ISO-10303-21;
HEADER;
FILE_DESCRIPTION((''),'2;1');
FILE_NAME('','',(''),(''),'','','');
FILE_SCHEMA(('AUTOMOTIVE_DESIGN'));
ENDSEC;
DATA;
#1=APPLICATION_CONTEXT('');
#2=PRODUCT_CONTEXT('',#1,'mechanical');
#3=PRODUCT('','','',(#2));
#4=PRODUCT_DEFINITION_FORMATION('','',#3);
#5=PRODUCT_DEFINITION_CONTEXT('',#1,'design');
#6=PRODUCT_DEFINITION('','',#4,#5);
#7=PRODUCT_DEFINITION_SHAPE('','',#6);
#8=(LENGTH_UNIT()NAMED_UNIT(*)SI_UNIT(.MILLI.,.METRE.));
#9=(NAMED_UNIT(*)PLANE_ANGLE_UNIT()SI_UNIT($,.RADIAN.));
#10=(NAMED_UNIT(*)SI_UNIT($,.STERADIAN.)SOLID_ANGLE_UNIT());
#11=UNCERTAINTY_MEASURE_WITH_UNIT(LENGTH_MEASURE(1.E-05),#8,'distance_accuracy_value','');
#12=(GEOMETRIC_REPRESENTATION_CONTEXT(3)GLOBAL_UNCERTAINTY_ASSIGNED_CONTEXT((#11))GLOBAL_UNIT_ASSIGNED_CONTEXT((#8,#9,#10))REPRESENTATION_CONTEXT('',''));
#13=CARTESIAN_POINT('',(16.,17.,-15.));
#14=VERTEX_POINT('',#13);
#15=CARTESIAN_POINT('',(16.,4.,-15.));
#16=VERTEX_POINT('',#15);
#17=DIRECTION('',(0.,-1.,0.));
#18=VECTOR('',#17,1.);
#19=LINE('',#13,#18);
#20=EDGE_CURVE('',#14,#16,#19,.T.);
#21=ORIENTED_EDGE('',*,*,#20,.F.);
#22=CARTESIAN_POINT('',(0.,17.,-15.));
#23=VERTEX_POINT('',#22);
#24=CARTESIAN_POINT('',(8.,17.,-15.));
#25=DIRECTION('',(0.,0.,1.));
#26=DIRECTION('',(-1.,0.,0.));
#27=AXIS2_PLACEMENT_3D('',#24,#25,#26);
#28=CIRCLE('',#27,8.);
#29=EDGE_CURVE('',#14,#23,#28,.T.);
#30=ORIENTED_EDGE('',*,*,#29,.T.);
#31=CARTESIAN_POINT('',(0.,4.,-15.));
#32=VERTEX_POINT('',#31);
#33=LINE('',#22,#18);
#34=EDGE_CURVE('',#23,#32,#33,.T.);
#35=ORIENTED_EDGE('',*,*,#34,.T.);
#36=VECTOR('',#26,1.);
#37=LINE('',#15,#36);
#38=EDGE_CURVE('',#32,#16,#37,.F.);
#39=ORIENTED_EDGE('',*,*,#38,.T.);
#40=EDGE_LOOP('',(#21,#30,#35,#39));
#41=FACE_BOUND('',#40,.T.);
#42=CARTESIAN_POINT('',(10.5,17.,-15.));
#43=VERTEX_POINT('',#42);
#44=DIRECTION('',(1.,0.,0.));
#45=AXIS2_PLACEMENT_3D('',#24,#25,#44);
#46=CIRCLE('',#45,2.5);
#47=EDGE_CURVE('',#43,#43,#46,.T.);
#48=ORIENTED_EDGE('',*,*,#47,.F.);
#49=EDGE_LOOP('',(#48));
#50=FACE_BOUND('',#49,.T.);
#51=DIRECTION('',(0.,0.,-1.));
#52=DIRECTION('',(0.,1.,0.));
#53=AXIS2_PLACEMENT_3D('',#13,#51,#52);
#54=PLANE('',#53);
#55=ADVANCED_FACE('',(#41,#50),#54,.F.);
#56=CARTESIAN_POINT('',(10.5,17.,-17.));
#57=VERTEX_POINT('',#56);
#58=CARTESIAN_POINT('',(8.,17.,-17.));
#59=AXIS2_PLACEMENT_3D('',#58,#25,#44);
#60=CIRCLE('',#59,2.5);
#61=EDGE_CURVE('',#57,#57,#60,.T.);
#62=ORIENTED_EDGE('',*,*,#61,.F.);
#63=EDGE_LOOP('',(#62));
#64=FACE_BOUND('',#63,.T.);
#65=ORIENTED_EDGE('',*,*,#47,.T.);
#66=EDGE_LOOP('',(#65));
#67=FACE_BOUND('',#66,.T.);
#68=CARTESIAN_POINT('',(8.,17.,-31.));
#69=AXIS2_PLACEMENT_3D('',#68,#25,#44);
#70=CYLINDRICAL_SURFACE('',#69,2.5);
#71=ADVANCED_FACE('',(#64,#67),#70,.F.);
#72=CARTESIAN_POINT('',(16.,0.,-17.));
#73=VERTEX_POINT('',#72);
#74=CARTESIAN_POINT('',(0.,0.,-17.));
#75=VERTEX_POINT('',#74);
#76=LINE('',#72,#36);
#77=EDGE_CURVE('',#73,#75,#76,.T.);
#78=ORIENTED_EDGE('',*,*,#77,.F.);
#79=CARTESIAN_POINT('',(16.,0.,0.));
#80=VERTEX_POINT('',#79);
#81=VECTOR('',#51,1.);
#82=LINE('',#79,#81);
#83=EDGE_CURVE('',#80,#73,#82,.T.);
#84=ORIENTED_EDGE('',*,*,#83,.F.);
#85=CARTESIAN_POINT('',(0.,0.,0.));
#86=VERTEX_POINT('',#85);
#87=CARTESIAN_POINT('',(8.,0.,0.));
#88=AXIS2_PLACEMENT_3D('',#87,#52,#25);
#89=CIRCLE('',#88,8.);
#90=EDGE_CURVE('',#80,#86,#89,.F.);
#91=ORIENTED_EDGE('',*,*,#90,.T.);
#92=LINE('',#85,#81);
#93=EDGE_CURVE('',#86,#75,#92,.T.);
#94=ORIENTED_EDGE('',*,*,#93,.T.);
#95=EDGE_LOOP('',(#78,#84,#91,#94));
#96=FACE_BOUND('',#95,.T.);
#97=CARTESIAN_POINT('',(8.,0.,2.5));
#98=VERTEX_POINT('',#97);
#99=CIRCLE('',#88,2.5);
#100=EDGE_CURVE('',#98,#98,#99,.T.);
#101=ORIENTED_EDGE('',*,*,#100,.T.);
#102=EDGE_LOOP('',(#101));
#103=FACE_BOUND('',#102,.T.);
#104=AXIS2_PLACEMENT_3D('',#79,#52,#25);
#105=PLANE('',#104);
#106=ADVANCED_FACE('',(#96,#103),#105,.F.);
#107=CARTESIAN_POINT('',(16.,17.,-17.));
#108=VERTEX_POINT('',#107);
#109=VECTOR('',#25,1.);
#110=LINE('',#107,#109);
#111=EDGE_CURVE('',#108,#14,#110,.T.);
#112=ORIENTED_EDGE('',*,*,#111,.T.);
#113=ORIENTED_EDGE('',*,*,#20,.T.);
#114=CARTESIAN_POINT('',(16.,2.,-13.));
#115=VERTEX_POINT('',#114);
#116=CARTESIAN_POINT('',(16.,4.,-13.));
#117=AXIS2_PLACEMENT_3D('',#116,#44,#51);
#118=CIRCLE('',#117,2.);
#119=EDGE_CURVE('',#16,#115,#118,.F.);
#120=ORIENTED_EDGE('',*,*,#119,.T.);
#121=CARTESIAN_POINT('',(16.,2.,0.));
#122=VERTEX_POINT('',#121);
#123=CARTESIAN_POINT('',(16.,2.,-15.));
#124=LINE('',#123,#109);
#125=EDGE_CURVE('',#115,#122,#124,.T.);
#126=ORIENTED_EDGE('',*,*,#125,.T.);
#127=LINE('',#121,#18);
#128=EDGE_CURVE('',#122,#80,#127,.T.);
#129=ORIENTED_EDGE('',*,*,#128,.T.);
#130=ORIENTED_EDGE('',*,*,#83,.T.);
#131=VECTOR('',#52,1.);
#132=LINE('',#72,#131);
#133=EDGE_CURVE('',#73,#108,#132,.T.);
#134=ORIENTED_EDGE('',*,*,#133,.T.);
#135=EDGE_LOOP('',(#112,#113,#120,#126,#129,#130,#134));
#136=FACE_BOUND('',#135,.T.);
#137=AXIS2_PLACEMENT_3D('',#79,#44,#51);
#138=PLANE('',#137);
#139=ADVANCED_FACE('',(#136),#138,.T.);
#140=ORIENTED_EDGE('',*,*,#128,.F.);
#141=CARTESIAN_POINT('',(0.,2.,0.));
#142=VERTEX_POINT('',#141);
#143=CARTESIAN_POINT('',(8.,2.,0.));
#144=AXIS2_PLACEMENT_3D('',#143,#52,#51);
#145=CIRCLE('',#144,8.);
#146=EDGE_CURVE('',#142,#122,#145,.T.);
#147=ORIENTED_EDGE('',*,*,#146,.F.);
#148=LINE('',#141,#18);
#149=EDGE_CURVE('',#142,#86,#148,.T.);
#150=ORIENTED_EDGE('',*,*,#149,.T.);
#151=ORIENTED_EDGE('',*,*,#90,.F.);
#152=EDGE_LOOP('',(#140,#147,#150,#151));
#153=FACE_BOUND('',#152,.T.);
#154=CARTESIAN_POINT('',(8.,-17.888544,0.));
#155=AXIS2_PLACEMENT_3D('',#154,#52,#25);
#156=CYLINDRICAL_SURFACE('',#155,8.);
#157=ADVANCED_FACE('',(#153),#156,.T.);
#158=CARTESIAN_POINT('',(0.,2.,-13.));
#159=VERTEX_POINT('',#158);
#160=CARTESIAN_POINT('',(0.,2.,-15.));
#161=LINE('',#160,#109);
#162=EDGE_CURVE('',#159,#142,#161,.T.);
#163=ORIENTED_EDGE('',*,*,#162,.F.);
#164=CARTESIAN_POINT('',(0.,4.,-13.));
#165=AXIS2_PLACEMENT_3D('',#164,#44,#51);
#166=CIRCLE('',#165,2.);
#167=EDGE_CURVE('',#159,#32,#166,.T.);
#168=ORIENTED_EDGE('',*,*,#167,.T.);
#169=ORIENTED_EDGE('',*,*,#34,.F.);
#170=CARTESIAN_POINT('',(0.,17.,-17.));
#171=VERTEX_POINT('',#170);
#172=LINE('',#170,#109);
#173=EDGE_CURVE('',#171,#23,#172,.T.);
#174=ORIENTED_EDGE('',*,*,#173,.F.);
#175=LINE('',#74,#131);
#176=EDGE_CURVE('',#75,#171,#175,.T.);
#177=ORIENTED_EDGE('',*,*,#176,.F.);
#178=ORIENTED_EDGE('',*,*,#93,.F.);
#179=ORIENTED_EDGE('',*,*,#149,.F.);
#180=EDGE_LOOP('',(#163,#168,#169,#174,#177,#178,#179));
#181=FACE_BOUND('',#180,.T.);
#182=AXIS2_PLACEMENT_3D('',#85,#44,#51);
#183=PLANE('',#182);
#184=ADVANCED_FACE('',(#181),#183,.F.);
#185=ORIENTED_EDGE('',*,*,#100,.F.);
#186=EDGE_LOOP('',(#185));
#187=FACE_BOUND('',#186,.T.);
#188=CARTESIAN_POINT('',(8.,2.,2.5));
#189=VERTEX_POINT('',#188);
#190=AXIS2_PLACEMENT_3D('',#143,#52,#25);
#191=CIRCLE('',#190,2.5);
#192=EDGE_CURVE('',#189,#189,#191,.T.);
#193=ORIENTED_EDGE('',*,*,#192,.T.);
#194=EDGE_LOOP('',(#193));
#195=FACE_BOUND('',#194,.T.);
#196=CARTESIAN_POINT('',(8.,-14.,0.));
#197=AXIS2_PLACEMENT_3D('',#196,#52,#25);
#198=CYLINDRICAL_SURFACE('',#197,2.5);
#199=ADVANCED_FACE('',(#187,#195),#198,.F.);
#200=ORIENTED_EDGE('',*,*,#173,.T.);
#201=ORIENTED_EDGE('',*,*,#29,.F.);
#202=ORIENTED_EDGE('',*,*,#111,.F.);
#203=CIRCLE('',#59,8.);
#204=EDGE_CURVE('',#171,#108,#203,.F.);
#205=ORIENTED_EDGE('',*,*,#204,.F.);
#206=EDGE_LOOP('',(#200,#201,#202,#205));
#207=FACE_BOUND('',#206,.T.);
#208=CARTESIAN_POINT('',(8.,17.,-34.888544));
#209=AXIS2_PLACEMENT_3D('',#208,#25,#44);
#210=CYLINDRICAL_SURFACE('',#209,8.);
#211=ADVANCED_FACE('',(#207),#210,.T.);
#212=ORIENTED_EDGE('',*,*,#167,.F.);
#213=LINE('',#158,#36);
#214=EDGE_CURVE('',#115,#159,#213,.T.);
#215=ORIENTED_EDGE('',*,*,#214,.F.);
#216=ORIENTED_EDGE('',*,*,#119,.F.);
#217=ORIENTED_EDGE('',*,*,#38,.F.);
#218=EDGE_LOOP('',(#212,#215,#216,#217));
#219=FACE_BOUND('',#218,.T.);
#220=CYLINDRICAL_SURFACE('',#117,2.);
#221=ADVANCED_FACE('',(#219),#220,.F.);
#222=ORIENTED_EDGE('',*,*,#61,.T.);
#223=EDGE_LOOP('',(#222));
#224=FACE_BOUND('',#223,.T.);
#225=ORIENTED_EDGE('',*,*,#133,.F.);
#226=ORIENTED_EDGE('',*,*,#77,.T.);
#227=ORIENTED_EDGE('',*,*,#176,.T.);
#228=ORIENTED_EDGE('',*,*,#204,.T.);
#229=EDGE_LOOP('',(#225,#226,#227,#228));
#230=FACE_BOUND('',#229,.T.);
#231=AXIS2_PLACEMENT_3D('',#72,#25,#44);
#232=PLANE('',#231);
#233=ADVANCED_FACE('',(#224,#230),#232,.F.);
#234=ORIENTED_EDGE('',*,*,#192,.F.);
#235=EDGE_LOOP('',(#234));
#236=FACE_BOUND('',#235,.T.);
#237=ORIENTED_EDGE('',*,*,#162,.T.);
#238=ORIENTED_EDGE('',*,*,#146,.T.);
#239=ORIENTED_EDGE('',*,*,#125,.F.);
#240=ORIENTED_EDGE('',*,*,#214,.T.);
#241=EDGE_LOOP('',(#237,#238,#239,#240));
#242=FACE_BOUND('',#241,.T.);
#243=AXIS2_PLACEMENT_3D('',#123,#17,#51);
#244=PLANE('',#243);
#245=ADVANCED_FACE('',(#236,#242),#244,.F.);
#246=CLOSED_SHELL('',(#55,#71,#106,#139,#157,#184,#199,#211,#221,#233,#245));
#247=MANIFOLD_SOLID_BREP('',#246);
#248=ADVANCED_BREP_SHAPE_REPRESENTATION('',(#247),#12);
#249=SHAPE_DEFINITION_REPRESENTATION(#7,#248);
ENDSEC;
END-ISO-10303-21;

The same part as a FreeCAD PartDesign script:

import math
import FreeCAD as App
import Part
import Sketcher

V = App.Vector
Q = App.Units.Quantity


def edges_at(feature, points):
    """Names of the edges that pass closest to the given points."""
    edges = feature.Shape.Edges
    near = lambda p: min(range(len(edges)), key=lambda i: edges[i].distToShape(Part.Vertex(*p))[0])
    return sorted({f"Edge{near(p) + 1}" for p in points})

doc = App.newDocument("Part")
body = doc.addObject("PartDesign::Body", "Body")

sketch1 = body.newObject("Sketcher::SketchObject", "Sketch")
sketch1.AttachmentSupport = (doc.getObject("YZ_Plane"), [""])
sketch1.MapMode = "FlatFace"
sketch1.addGeometry([
    Part.LineSegment(V(0, 0, 0), V(0, -17, 0)),
    Part.LineSegment(V(0, -17, 0), V(17, -17, 0)),
    Part.LineSegment(V(17, -17, 0), V(17, -15, 0)),
    Part.LineSegment(V(17, -15, 0), V(2, -15, 0)),
    Part.LineSegment(V(2, -15, 0), V(2, 0, 0)),
    Part.LineSegment(V(2, 0, 0), V(0, 0, 0)),
], False)
sketch1.addConstraint([
    Sketcher.Constraint("Coincident", 0, 2, 1, 1),
    Sketcher.Constraint("Coincident", 1, 2, 2, 1),
    Sketcher.Constraint("Coincident", 2, 2, 3, 1),
    Sketcher.Constraint("Coincident", 3, 2, 4, 1),
    Sketcher.Constraint("Coincident", 4, 2, 5, 1),
    Sketcher.Constraint("Coincident", 5, 2, 0, 1),
    Sketcher.Constraint("Vertical", 0),
    Sketcher.Constraint("Horizontal", 1),
    Sketcher.Constraint("Vertical", 2),
    Sketcher.Constraint("Horizontal", 3),
    Sketcher.Constraint("Vertical", 4),
    Sketcher.Constraint("Horizontal", 5),
    Sketcher.Constraint("Coincident", 5, 2, -1, 1),
    Sketcher.Constraint("Equal", 1, 0),
    Sketcher.Constraint("Equal", 5, 2),
    Sketcher.Constraint("DistanceX", 1, 1, 1, 2, Q("17 mm")),
    Sketcher.Constraint("DistanceX", 3, 2, 3, 1, Q("15 mm")),
])
pad1 = body.newObject("PartDesign::Pad", "Pad")
pad1.Profile = sketch1
pad1.Length = 16

sketch2 = body.newObject("Sketcher::SketchObject", "Sketch001")
sketch2.AttachmentSupport = (doc.getObject("XY_Plane"), [""])
sketch2.MapMode = "FlatFace"
sketch2.AttachmentOffset = App.Placement(V(0, 0, -15), App.Rotation())
sketch2.addGeometry([
    Part.LineSegment(V(0, 17, 0), V(16, 17, 0)),
    Part.ArcOfCircle(Part.Circle(V(8, 17, 0), V(0, 0, 1), 8), math.radians(0), math.radians(180)),
], False)
sketch2.addConstraint([
    Sketcher.Constraint("Coincident", 0, 1, 1, 2),
    Sketcher.Constraint("Coincident", 1, 1, 0, 2),
    Sketcher.Constraint("Horizontal", 0),
    Sketcher.Constraint("PointOnObject", 0, 1, -2),
    Sketcher.Constraint("Horizontal", 1, 3, 0, 1),
    Sketcher.Constraint("Radius", 1, Q("8 mm")),
    Sketcher.Constraint("DistanceY", -1, 1, 1, 3, Q("17 mm")),
])
pad2 = body.newObject("PartDesign::Pad", "Pad001")
pad2.Profile = sketch2
pad2.Length = 2
pad2.Reversed = True
doc.recompute()

fillet = body.newObject("PartDesign::Fillet", "Fillet")
fillet.Base = (pad2, edges_at(pad2, [(8, 2, -15)]))
fillet.Radius = 2

sketch3 = body.newObject("Sketcher::SketchObject", "Sketch002")
sketch3.AttachmentSupport = (doc.getObject("XZ_Plane"), [""])
sketch3.MapMode = "FlatFace"
sketch3.AttachmentOffset = App.Placement(V(0, 0, -2), App.Rotation())
sketch3.addGeometry([
    Part.LineSegment(V(16, 0, 0), V(0, 0, 0)),
    Part.ArcOfCircle(Part.Circle(V(8, 0, 0), V(0, 0, 1), 8), math.radians(0), math.radians(180)),
], False)
sketch3.addConstraint([
    Sketcher.Constraint("Coincident", 0, 1, 1, 1),
    Sketcher.Constraint("Coincident", 1, 2, 0, 2),
    Sketcher.Constraint("Horizontal", 0),
    Sketcher.Constraint("Coincident", 1, 2, -1, 1),
    Sketcher.Constraint("PointOnObject", 1, 3, -1),
    Sketcher.Constraint("Radius", 1, Q("8 mm")),
])
pad3 = body.newObject("PartDesign::Pad", "Pad002")
pad3.Profile = sketch3
pad3.Length = 2

sketch4 = body.newObject("Sketcher::SketchObject", "Sketch003")
sketch4.AttachmentSupport = (doc.getObject("XY_Plane"), [""])
sketch4.MapMode = "FlatFace"
sketch4.AttachmentOffset = App.Placement(V(0, 0, -15), App.Rotation())
sketch4.addGeometry(Part.Circle(V(8, 17, 0), V(0, 0, 1), 2.5), False)
sketch4.addConstraint([
    Sketcher.Constraint("Diameter", 0, Q("5 mm")),
    Sketcher.Constraint("DistanceX", -1, 1, 0, 3, Q("8 mm")),
    Sketcher.Constraint("DistanceY", -1, 1, 0, 3, Q("17 mm")),
])
pocket1 = body.newObject("PartDesign::Pocket", "Pocket")
pocket1.Profile = sketch4
pocket1.Length = 16

sketch5 = body.newObject("Sketcher::SketchObject", "Sketch004")
sketch5.AttachmentSupport = (doc.getObject("XZ_Plane"), [""])
sketch5.MapMode = "FlatFace"
sketch5.AttachmentOffset = App.Placement(V(0, 0, -2), App.Rotation())
sketch5.addGeometry(Part.Circle(V(8, 0, 0), V(0, 0, 1), 2.5), False)
sketch5.addConstraint([
    Sketcher.Constraint("PointOnObject", 0, 3, -1),
    Sketcher.Constraint("Diameter", 0, Q("5 mm")),
    Sketcher.Constraint("DistanceX", -1, 1, 0, 3, Q("8 mm")),
])
pocket2 = body.newObject("PartDesign::Pocket", "Pocket001")
pocket2.Profile = sketch5
pocket2.Length = 16
pocket2.Reversed = True

doc.recompute()
